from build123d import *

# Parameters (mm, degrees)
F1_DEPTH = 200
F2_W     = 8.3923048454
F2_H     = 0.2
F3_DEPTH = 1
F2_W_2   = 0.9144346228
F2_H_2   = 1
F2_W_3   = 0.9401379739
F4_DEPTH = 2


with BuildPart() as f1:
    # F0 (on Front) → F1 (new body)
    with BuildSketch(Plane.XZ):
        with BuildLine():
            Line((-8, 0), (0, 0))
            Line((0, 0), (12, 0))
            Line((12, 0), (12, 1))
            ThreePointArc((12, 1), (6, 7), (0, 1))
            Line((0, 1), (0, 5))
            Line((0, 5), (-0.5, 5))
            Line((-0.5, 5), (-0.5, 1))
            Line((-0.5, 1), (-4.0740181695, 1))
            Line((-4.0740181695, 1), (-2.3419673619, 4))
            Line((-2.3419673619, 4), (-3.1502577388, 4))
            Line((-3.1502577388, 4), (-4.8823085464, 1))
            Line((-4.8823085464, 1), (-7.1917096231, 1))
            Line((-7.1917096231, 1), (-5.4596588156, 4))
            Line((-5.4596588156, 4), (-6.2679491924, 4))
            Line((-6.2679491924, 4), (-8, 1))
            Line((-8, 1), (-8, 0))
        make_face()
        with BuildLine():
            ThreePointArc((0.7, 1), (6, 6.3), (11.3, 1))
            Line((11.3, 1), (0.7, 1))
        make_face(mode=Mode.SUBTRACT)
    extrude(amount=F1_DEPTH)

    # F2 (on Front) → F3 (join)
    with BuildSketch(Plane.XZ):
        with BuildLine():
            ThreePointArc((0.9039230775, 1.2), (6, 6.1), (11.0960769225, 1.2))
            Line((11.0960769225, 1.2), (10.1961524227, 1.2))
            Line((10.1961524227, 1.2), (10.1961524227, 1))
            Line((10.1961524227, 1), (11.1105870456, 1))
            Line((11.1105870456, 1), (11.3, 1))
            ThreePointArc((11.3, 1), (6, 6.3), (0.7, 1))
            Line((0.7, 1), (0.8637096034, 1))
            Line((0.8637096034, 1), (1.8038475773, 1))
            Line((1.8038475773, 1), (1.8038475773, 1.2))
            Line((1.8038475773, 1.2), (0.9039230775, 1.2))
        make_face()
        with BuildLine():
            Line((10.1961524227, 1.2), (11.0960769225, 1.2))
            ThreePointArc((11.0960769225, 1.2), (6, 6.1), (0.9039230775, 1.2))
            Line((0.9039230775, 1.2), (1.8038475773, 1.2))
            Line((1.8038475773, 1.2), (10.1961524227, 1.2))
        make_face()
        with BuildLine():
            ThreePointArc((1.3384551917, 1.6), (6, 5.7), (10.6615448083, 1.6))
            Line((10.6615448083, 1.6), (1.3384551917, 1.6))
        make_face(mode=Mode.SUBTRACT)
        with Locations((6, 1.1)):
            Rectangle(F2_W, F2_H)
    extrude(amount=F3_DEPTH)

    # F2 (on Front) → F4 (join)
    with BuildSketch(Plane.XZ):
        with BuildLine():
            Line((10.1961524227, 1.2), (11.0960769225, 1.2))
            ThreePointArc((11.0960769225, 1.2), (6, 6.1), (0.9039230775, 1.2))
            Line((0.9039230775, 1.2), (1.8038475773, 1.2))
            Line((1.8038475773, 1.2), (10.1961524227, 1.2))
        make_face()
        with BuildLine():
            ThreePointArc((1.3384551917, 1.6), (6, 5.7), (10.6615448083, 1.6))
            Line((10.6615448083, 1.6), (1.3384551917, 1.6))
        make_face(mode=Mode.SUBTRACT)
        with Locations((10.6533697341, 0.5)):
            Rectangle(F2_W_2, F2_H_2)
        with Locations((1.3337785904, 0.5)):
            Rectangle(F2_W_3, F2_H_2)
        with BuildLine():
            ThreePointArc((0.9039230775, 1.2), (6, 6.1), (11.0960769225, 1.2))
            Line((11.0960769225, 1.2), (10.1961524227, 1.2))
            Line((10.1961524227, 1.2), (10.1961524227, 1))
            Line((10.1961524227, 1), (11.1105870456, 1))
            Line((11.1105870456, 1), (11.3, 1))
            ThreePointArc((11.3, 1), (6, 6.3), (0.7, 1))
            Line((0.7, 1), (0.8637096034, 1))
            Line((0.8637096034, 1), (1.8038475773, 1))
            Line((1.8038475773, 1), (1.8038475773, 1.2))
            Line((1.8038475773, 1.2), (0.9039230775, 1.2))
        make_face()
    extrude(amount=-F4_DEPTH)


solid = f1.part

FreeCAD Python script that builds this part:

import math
import FreeCAD as App
import Part
import Sketcher
from FreeCAD import Vector
Q = App.Units.Quantity

doc = App.newDocument("Part")
body = doc.addObject("PartDesign::Body", "Body")

sketch1 = body.newObject("Sketcher::SketchObject", "Sketch")
sketch1.AttachmentSupport = (doc.getObject("XZ_Plane"), [""])
sketch1.MapMode = "FlatFace"
sketch1.addGeometry([
    Part.LineSegment(Vector(-8, 0, 0), Vector(12, 0, 0)),
    Part.LineSegment(Vector(12, 0, 0), Vector(12, 1, 0)),
    Part.ArcOfCircle(Part.Circle(Vector(6, 1, 0), Vector(0, 0, 1), 6), math.radians(0), math.radians(180)),
    Part.LineSegment(Vector(0, 1, 0), Vector(0, 5, 0)),
    Part.LineSegment(Vector(0, 5, 0), Vector(-0.5, 5, 0)),
    Part.LineSegment(Vector(-0.5, 5, 0), Vector(-0.5, 1, 0)),
    Part.LineSegment(Vector(-0.5, 1, 0), Vector(-4.1, 1, 0)),
    Part.LineSegment(Vector(-4.1, 1, 0), Vector(-2.3, 4, 0)),
    Part.LineSegment(Vector(-2.3, 4, 0), Vector(-3.2, 4, 0)),
    Part.LineSegment(Vector(-3.2, 4, 0), Vector(-4.9, 1, 0)),
    Part.LineSegment(Vector(-4.9, 1, 0), Vector(-7.2, 1, 0)),
    Part.LineSegment(Vector(-7.2, 1, 0), Vector(-5.5, 4, 0)),
    Part.LineSegment(Vector(-5.5, 4, 0), Vector(-6.3, 4, 0)),
    Part.LineSegment(Vector(-6.3, 4, 0), Vector(-8, 1, 0)),
    Part.LineSegment(Vector(-8, 1, 0), Vector(-8, 0, 0)),
    Part.LineSegment(Vector(11.3, 1, 0), Vector(0.7, 1, 0)),
    Part.ArcOfCircle(Part.Circle(Vector(6, 1, 0), Vector(0, 0, 1), 5.3), math.radians(0), math.radians(180)),
], False)
sketch1.addConstraint([
    Sketcher.Constraint("Coincident", 0, 2, 1, 1),
    Sketcher.Constraint("Tangent", 1, 2, 2, 1),
    Sketcher.Constraint("Tangent", 2, 2, 3, 1),
    Sketcher.Constraint("Coincident", 3, 2, 4, 1),
    Sketcher.Constraint("Coincident", 4, 2, 5, 1),
    Sketcher.Constraint("Coincident", 5, 2, 6, 1),
    Sketcher.Constraint("Coincident", 6, 2, 7, 1),
    Sketcher.Constraint("Coincident", 7, 2, 8, 1),
    Sketcher.Constraint("Coincident", 8, 2, 9, 1),
    Sketcher.Constraint("Coincident", 9, 2, 10, 1),
    Sketcher.Constraint("Coincident", 10, 2, 11, 1),
    Sketcher.Constraint("Coincident", 11, 2, 12, 1),
    Sketcher.Constraint("Coincident", 12, 2, 13, 1),
    Sketcher.Constraint("Coincident", 13, 2, 14, 1),
    Sketcher.Constraint("Coincident", 14, 2, 0, 1),
    Sketcher.Constraint("Coincident", 15, 1, 16, 1),
    Sketcher.Constraint("Coincident", 16, 2, 15, 2),
    Sketcher.Constraint("Horizontal", 0),
    Sketcher.Constraint("Vertical", 1),
    Sketcher.Constraint("Vertical", 3),
    Sketcher.Constraint("Horizontal", 4),
    Sketcher.Constraint("Vertical", 5),
    Sketcher.Constraint("Horizontal", 6),
    Sketcher.Constraint("Horizontal", 8),
    Sketcher.Constraint("Horizontal", 10),
    Sketcher.Constraint("Horizontal", 12),
    Sketcher.Constraint("Vertical", 14),
    Sketcher.Constraint("Horizontal", 15),
    Sketcher.Constraint("Coincident", 16, 3, 2, 3),
    Sketcher.Constraint("PointOnObject", 0, 2, -1),
    Sketcher.Constraint("PointOnObject", 2, 2, -2),
    Sketcher.Constraint("Parallel", 7, 9),
    Sketcher.Constraint("Parallel", 9, 11),
    Sketcher.Constraint("Parallel", 11, 13),
    Sketcher.Constraint("Horizontal", 2, 2, 5, 2),
    Sketcher.Constraint("Horizontal", 6, 2, 9, 2),
    Sketcher.Constraint("Horizontal", 8, 2, 11, 2),
    Sketcher.Constraint("Horizontal", 10, 2, 13, 2),
    Sketcher.Constraint("Horizontal", 13, 2, 15, 1),
    Sketcher.Constraint("Equal", 8, 12),
    Sketcher.Constraint("Radius", 2, Q("6 mm")),
    Sketcher.Constraint("Radius", 16, Q("5.3 mm")),
    Sketcher.Constraint("DistanceX", 0, 1, 0, 2, Q("20 mm")),
    Sketcher.Constraint("DistanceY", 1, 1, 1, 2, Q("1 mm")),
    Sketcher.Constraint("DistanceY", 3, 1, 3, 2, Q("4 mm")),
    Sketcher.Constraint("Angle", 7, Q("60 deg")),
    Sketcher.Constraint("DistanceX", 4, 2, 4, 1, Q("0.5 mm")),
    Sketcher.Constraint("DistanceY", -1, 1, 7, 2, Q("4 mm")),
    Sketcher.Constraint("DistanceX", 10, 2, 10, 1, Q("2.309401 mm")),
    Sketcher.Constraint("DistanceX", 6, 2, 6, 1, Q("3.574018 mm")),
])
pad1 = body.newObject("PartDesign::Pad", "Pad")
pad1.Profile = sketch1
pad1.Length = 200

sketch2 = body.newObject("Sketcher::SketchObject", "Sketch001")
sketch2.AttachmentSupport = (doc.getObject("XZ_Plane"), [""])
sketch2.MapMode = "FlatFace"
sketch2.addGeometry([
    Part.ArcOfCircle(Part.Circle(Vector(6, 1, 0), Vector(0, 0, 1), 5.3), math.radians(0), math.radians(180)),
    Part.LineSegment(Vector(0.7, 1, 0), Vector(11.3, 1, 0)),
    Part.LineSegment(Vector(10.7, 1.6, 0), Vector(1.3, 1.6, 0)),
    Part.ArcOfCircle(Part.Circle(Vector(6, 1, 0), Vector(0, 0, 1), 4.7), math.radians(7), math.radians(173)),
], False)
sketch2.addConstraint([
    Sketcher.Constraint("Coincident", 0, 1, 1, 2),
    Sketcher.Constraint("Coincident", 1, 1, 0, 2),
    Sketcher.Constraint("Coincident", 2, 1, 3, 1),
    Sketcher.Constraint("Coincident", 3, 2, 2, 2),
    Sketcher.Constraint("Horizontal", 1),
    Sketcher.Constraint("Horizontal", 2),
    Sketcher.Constraint("Coincident", 3, 3, 0, 3),
    Sketcher.Constraint("Horizontal", 3, 3, 0, 1),
    Sketcher.Constraint("Radius", 0, Q("5.3 mm")),
    Sketcher.Constraint("Radius", 3, Q("4.7 mm")),
    Sketcher.Constraint("DistanceX", -1, 1, 0, 3, Q("6 mm")),
    Sketcher.Constraint("DistanceY", -1, 1, 0, 3, Q("1 mm")),
    Sketcher.Constraint("DistanceY", -1, 1, 2, 1, Q("1.6 mm")),
])
pad2 = body.newObject("PartDesign::Pad", "Pad001")
pad2.Profile = sketch2
pad2.Length = 1

sketch3 = body.newObject("Sketcher::SketchObject", "Sketch002")
sketch3.AttachmentSupport = (doc.getObject("XZ_Plane"), [""])
sketch3.MapMode = "FlatFace"
sketch3.addGeometry([
    Part.LineSegment(Vector(1.8, 1.2, 0), Vector(10.2, 1.2, 0)),
    Part.LineSegment(Vector(10.2, 1.2, 0), Vector(10.2, 0, 0)),
    Part.LineSegment(Vector(10.2, 0, 0), Vector(11.11, 0, 0)),
    Part.LineSegment(Vector(11.11, 0, 0), Vector(11.11, 1, 0)),
    Part.LineSegment(Vector(11.11, 1, 0), Vector(11.3, 1, 0)),
    Part.ArcOfCircle(Part.Circle(Vector(6, 1, 0), Vector(0, 0, 1), 5.3), math.radians(0), math.radians(180)),
    Part.LineSegment(Vector(0.7, 1, 0), Vector(0.86, 1, 0)),
    Part.LineSegment(Vector(0.86, 1, 0), Vector(0.86, 0, 0)),
    Part.LineSegment(Vector(0.86, 0, 0), Vector(1.8, 0, 0)),
    Part.LineSegment(Vector(1.8, 0, 0), Vector(1.8, 1, 0)),
    Part.LineSegment(Vector(1.8, 1, 0), Vector(1.8, 1.2, 0)),
    Part.LineSegment(Vector(10.66, 1.6, 0), Vector(1.34, 1.6, 0)),
    Part.ArcOfCircle(Part.Circle(Vector(6, 1, 0), Vector(0, 0, 1), 4.7), math.radians(7), math.radians(173)),
], False)
sketch3.addConstraint([
    Sketcher.Constraint("Coincident", 0, 2, 1, 1),
    Sketcher.Constraint("Coincident", 1, 2, 2, 1),
    Sketcher.Constraint("Coincident", 2, 2, 3, 1),
    Sketcher.Constraint("Coincident", 3, 2, 4, 1),
    Sketcher.Constraint("Coincident", 4, 2, 5, 1),
    Sketcher.Constraint("Coincident", 5, 2, 6, 1),
    Sketcher.Constraint("Coincident", 6, 2, 7, 1),
    Sketcher.Constraint("Coincident", 7, 2, 8, 1),
    Sketcher.Constraint("Coincident", 8, 2, 9, 1),
    Sketcher.Constraint("Coincident", 9, 2, 10, 1),
    Sketcher.Constraint("Coincident", 10, 2, 0, 1),
    Sketcher.Constraint("Coincident", 11, 1, 12, 1),
    Sketcher.Constraint("Coincident", 12, 2, 11, 2),
    Sketcher.Constraint("Horizontal", 0),
    Sketcher.Constraint("Vertical", 1),
    Sketcher.Constraint("Horizontal", 2),
    Sketcher.Constraint("Vertical", 3),
    Sketcher.Constraint("Horizontal", 4),
    Sketcher.Constraint("Horizontal", 6),
    Sketcher.Constraint("Vertical", 7),
    Sketcher.Constraint("Horizontal", 8),
    Sketcher.Constraint("Vertical", 9),
    Sketcher.Constraint("Vertical", 10),
    Sketcher.Constraint("Horizontal", 11),
    Sketcher.Constraint("Coincident", 12, 3, 5, 3),
    Sketcher.Constraint("PointOnObject", 1, 2, -1),
    Sketcher.Constraint("PointOnObject", 7, 2, -1),
    Sketcher.Constraint("Horizontal", 12, 3, 3, 2),
    Sketcher.Constraint("Horizontal", 4, 2, 5, 2),
    Sketcher.Constraint("Horizontal", 6, 2, 9, 2),
    Sketcher.Constraint("Radius", 5, Q("5.3 mm")),
    Sketcher.Constraint("Radius", 12, Q("4.7 mm")),
    Sketcher.Constraint("DistanceY", 3, 1, 3, 2, Q("1 mm")),
    Sketcher.Constraint("DistanceY", 1, 2, 1, 1, Q("1.2 mm")),
    Sketcher.Constraint("DistanceX", -1, 1, 5, 3, Q("6 mm")),
    Sketcher.Constraint("DistanceY", -1, 1, 11, 1, Q("1.6 mm")),
    Sketcher.Constraint("DistanceX", 6, 1, 6, 2, Q("0.16371 mm")),
    Sketcher.Constraint("DistanceX", 0, 1, 0, 2, Q("8.392305 mm")),
    Sketcher.Constraint("DistanceX", 2, 1, 2, 2, Q("0.914435 mm")),
    Sketcher.Constraint("DistanceX", 4, 1, 4, 2, Q("0.189413 mm")),
])
pad3 = body.newObject("PartDesign::Pad", "Pad002")
pad3.Profile = sketch3
pad3.Length = 2
pad3.Reversed = True

doc.recompute()
